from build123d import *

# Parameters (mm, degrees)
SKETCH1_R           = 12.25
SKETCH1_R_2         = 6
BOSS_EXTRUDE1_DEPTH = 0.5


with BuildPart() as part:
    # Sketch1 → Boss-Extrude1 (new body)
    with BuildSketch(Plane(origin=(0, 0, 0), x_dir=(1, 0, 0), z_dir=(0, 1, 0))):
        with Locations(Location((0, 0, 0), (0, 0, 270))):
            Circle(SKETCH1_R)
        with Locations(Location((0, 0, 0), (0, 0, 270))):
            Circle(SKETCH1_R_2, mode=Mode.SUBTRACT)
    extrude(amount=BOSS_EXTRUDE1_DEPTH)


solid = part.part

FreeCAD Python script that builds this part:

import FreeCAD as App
import Part
import Sketcher

V = App.Vector

doc = App.newDocument("Part")
body = doc.addObject("PartDesign::Body", "Body")

# Sketch on XZ plane
sketch1 = body.newObject("Sketcher::SketchObject", "Sketch")
sketch1.AttachmentSupport = (doc.getObject("XZ_Plane"), [""])
sketch1.MapMode = "FlatFace"
sketch1.addGeometry([
    Part.Circle(V(0, 0, 0), V(0, 0, 1), 12),
    Part.Circle(V(0, 0, 0), V(0, 0, 1), 6),
], False)
sketch1.addConstraint([
    Sketcher.Constraint("Coincident", 0, 3, -1, 1),
    Sketcher.Constraint("Coincident", 1, 3, -1, 1),
    Sketcher.Constraint("Diameter", 1, 12.0),
    Sketcher.Constraint("Diameter", 0, 24.5),
])
pad1 = body.newObject("PartDesign::Pad", "Pad")
pad1.Profile = sketch1
pad1.Length = 0.5
pad1.Reversed = True

doc.recompute()
